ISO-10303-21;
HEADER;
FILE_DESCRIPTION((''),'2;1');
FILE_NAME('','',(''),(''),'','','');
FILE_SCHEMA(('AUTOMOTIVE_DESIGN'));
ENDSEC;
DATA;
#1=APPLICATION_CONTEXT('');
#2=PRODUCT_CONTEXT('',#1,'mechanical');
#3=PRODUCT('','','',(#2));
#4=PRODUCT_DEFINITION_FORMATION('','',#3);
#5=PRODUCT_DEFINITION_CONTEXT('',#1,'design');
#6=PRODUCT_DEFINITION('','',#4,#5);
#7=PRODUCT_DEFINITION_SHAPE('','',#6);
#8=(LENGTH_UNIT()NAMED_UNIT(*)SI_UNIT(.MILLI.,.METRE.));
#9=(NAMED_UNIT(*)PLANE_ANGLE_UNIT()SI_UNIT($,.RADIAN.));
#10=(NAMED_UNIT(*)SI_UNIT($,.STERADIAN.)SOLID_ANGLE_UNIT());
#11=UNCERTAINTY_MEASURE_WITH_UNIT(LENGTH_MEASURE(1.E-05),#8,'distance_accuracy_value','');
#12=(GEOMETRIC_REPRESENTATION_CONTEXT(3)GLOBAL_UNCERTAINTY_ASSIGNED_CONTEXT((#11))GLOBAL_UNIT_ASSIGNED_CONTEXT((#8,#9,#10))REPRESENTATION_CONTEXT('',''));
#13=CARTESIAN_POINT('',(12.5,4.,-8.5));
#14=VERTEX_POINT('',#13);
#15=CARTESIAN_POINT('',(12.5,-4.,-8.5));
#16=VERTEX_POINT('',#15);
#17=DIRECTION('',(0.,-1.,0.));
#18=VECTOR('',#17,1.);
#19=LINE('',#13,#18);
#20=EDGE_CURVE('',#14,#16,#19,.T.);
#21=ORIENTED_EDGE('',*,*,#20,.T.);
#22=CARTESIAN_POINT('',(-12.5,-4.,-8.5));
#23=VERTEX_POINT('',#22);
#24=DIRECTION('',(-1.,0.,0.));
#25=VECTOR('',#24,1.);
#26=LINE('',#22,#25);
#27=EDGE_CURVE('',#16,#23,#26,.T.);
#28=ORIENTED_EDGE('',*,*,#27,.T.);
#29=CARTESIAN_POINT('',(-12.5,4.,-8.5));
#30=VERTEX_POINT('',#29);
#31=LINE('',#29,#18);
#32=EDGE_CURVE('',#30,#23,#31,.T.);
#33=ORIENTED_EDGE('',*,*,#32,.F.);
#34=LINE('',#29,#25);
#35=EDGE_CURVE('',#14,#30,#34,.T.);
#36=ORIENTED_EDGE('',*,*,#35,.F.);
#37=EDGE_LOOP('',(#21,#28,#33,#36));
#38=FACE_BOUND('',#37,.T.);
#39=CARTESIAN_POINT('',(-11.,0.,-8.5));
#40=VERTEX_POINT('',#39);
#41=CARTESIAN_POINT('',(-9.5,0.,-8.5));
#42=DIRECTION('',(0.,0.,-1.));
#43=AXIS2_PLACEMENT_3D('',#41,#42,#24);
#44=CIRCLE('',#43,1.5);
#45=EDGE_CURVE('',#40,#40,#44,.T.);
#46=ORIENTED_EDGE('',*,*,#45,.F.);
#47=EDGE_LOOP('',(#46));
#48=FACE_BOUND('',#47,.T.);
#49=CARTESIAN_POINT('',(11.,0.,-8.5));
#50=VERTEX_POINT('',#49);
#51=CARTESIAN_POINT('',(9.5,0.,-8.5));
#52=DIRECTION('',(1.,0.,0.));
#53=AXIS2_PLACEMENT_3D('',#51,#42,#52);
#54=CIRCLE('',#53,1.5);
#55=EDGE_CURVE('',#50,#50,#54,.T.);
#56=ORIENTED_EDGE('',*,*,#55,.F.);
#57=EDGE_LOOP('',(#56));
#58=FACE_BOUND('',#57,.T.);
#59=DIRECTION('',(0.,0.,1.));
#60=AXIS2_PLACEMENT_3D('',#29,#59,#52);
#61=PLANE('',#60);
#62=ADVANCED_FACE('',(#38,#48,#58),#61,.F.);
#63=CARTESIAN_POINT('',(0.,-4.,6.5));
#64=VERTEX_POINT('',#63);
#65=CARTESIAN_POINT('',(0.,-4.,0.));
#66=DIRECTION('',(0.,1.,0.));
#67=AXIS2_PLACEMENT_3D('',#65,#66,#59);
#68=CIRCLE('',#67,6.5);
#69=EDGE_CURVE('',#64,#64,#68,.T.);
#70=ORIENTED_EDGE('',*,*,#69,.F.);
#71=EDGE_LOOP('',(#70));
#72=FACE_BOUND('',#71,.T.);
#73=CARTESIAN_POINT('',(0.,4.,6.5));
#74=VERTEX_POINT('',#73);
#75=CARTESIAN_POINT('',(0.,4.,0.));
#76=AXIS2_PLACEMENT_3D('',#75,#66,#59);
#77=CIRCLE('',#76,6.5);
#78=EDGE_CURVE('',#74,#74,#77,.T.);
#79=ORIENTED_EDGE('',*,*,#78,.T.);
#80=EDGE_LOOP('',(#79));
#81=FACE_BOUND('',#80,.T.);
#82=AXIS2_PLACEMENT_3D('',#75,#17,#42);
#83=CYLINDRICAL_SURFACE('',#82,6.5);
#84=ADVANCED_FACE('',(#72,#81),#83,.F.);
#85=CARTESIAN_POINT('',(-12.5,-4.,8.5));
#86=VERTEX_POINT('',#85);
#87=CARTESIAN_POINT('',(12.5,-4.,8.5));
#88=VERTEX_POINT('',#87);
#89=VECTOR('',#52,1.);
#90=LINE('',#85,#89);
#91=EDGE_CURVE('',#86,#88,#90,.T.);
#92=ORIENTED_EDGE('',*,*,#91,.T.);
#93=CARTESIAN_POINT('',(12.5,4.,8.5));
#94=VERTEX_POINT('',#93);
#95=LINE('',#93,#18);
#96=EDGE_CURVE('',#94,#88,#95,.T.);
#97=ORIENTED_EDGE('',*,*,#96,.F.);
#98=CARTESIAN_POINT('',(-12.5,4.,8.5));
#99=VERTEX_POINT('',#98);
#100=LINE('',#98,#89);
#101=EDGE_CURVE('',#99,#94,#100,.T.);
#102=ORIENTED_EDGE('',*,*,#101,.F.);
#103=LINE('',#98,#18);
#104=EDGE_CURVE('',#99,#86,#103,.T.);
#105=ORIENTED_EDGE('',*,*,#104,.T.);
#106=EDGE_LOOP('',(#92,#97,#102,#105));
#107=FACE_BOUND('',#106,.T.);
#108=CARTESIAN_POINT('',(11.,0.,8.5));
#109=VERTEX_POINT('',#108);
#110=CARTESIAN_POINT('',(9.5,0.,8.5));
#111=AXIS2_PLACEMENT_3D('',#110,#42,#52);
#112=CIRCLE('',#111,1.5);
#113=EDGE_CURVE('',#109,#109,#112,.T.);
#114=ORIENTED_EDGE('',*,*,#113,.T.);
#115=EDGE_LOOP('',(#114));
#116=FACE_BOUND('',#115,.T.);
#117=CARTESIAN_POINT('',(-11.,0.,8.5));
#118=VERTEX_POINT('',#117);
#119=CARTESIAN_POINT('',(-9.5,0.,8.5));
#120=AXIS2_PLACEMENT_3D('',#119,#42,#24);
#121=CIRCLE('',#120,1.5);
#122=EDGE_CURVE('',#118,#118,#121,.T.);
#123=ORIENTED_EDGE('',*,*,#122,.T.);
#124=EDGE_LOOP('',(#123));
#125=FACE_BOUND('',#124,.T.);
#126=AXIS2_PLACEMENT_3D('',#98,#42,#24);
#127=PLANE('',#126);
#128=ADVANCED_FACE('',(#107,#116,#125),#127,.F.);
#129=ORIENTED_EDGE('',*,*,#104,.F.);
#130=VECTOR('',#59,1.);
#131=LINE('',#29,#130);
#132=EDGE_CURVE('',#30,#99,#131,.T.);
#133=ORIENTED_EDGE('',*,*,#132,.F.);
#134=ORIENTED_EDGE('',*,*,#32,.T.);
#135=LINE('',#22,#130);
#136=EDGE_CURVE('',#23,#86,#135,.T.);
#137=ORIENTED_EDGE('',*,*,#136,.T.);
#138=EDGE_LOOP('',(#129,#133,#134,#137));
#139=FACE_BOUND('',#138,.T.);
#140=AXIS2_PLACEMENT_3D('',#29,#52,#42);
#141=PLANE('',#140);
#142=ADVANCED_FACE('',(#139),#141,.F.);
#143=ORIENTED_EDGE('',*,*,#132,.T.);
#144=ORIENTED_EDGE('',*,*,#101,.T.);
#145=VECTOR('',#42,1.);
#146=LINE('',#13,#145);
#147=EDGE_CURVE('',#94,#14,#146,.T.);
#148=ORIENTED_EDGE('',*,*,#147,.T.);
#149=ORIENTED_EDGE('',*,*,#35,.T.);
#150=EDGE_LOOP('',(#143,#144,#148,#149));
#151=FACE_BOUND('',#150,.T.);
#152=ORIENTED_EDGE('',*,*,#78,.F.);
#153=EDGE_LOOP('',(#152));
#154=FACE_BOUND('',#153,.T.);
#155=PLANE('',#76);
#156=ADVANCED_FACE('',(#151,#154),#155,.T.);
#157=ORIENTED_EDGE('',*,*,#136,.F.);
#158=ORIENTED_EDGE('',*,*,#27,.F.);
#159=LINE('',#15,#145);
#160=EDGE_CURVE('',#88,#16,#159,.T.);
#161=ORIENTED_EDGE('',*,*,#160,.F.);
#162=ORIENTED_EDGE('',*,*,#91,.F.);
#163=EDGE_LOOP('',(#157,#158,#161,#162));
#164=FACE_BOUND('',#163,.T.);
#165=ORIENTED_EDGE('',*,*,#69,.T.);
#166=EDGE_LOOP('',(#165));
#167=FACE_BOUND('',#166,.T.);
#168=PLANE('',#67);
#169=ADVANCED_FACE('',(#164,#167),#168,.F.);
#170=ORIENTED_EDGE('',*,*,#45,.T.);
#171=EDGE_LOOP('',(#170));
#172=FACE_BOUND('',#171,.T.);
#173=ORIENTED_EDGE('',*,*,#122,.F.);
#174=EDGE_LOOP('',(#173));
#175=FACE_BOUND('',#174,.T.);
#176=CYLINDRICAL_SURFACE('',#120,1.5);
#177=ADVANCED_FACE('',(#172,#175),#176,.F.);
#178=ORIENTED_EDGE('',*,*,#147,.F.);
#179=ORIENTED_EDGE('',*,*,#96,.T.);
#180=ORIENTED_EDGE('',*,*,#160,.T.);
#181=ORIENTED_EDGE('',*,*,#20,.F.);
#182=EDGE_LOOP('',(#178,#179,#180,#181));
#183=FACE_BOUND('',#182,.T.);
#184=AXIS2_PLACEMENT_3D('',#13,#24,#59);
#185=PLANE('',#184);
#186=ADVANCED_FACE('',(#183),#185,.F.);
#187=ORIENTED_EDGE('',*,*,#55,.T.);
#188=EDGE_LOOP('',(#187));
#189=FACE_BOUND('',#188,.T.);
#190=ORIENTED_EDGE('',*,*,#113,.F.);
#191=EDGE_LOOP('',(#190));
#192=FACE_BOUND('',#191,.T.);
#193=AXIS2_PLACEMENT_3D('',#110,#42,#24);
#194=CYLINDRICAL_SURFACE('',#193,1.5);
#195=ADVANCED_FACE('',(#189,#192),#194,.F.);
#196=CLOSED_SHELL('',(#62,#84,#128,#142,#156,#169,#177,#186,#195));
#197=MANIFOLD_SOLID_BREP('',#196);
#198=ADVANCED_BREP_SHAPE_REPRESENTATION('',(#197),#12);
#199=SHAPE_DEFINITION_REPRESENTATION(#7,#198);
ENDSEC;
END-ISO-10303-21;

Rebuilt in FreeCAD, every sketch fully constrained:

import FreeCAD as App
import Part
import Sketcher

V = App.Vector
Q = App.Units.Quantity

doc = App.newDocument("Part")
params = doc.addObject("Spreadsheet::Sheet", "Params")
for row, (alias, value) in enumerate([
    ("sketch1_diameter", "13 mm"),
    ("sketch1_width", "25 mm"),
    ("sketch1_height", "17 mm"),
    ("pad1_length", "8 mm"),
    ("sketch2_diameter", "3 mm"),
], start=1):
    params.set(f"A{row}", alias)
    params.set(f"B{row}", "=" + value)
    params.setAlias(f"B{row}", alias)

body = doc.addObject("PartDesign::Body", "Body")

# Sketch on XZ plane
sketch1 = body.newObject("Sketcher::SketchObject", "Sketch")
sketch1.AttachmentSupport = (doc.getObject("XZ_Plane"), [""])
sketch1.MapMode = "FlatFace"
sketch1.addGeometry(Part.LineSegment(V(-12.5, -8.5, 0), V(-12.5, 8.5, 0)), False)
sketch1.addGeometry(Part.LineSegment(V(-12.5, 8.5, 0), V(12.5, 8.5, 0)), False)
sketch1.addGeometry(Part.LineSegment(V(12.5, 8.5, 0), V(12.5, -8.5, 0)), False)
sketch1.addGeometry(Part.LineSegment(V(12.5, -8.5, 0), V(-12.5, -8.5, 0)), False)
sketch1.addGeometry(Part.Circle(V(0, 0, 0), V(0, 0, 1), 6.5), False)
sketch1.addConstraint(Sketcher.Constraint("Coincident", 0, 2, 1, 1))
sketch1.addConstraint(Sketcher.Constraint("Coincident", 1, 2, 2, 1))
sketch1.addConstraint(Sketcher.Constraint("Coincident", 2, 2, 3, 1))
sketch1.addConstraint(Sketcher.Constraint("Coincident", 3, 2, 0, 1))
sketch1.addConstraint(Sketcher.Constraint("Vertical", 0))
sketch1.addConstraint(Sketcher.Constraint("Horizontal", 1))
sketch1.addConstraint(Sketcher.Constraint("Vertical", 2))
sketch1.addConstraint(Sketcher.Constraint("Horizontal", 3))
sketch1.addConstraint(Sketcher.Constraint("Coincident", 4, 3, -1, 1))
sketch1.addConstraint(Sketcher.Constraint("Symmetric", 0, 2, 2, 2, -1, 1))
sketch1.addConstraint(Sketcher.Constraint("Diameter", 4, Q("13 mm")))
sketch1.addConstraint(Sketcher.Constraint("DistanceX", 1, 1, 1, 2, Q("25 mm")))
sketch1.addConstraint(Sketcher.Constraint("DistanceY", 0, 1, 0, 2, Q("17 mm")))
sketch1.setExpression("Constraints[10]", "Params.sketch1_diameter")
sketch1.setExpression("Constraints[11]", "Params.sketch1_width")
sketch1.setExpression("Constraints[12]", "Params.sketch1_height")
pad1 = body.newObject("PartDesign::Pad", "Pad")
pad1.Profile = sketch1
pad1.setExpression("Length", "Params.pad1_length")
pad1.Midplane = True

# Sketch on XY plane
sketch2 = body.newObject("Sketcher::SketchObject", "Sketch001")
sketch2.AttachmentSupport = (doc.getObject("XY_Plane"), [""])
sketch2.MapMode = "FlatFace"
sketch2.AttachmentOffset = App.Placement(V(0, 0, -8.5), App.Rotation())
sketch2.addGeometry(Part.Circle(V(-9.5, 0, 0), V(0, 0, 1), 1.5), False)
sketch2.addGeometry(Part.Circle(V(9.5, 0, 0), V(0, 0, 1), 1.5), False)
sketch2.addConstraint(Sketcher.Constraint("Equal", 0, 1))
sketch2.addConstraint(Sketcher.Constraint("Symmetric", 0, 3, 1, 3, -1, 1))
sketch2.addConstraint(Sketcher.Constraint("PointOnObject", 0, 3, -1))
sketch2.addConstraint(Sketcher.Constraint("Diameter", 0, Q("3 mm")))
sketch2.addConstraint(Sketcher.Constraint("DistanceX", 0, 3, 1, 3, Q("19 mm")))
sketch2.setExpression("Constraints[3]", "Params.sketch2_diameter")
pocket1 = body.newObject("PartDesign::Pocket", "Pocket")
pocket1.Profile = sketch2
pocket1.Type = "ThroughAll"
pocket1.Reversed = True

doc.recompute()
